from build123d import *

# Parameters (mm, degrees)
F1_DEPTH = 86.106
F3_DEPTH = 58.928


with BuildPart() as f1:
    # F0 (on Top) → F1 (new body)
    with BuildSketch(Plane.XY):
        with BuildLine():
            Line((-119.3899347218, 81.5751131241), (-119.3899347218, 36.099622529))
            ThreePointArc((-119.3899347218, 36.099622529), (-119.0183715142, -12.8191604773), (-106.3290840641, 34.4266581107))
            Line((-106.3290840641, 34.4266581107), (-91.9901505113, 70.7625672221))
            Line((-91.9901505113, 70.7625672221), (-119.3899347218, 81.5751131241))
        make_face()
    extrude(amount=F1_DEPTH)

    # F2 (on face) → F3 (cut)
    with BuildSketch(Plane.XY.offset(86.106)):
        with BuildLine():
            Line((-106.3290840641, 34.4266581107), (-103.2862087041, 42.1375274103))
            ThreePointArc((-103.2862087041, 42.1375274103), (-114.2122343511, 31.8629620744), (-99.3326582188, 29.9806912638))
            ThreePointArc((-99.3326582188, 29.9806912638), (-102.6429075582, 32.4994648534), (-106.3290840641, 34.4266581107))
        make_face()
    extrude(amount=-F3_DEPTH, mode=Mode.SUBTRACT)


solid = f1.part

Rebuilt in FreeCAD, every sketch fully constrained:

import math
import FreeCAD as App
import Part
import Sketcher
from FreeCAD import Vector
Q = App.Units.Quantity

doc = App.newDocument("Part")
body = doc.addObject("PartDesign::Body", "Body")

# Sketch on XY plane
sketch1 = doc.addObject("Sketcher::SketchObject", "Sketch")
body.addObject(sketch1)
sketch1.AttachmentSupport = (doc.XY_Plane, [""])
sketch1.MapMode = "FlatFace"
sketch1.addGeometry([
    Part.LineSegment(Vector(-119, 82, 0), Vector(-119, 36, 0)),
    Part.ArcOfCircle(Part.Circle(Vector(-116, 12, 0), Vector(0, 0, 1), 25), math.radians(98), math.radians(427)),
    Part.LineSegment(Vector(-106, 34, 0), Vector(-92, 71, 0)),
    Part.LineSegment(Vector(-92, 71, 0), Vector(-119, 82, 0)),
], False)
sketch1.addConstraint([
    Sketcher.Constraint("Coincident", 0, 2, 1, 1),
    Sketcher.Constraint("Coincident", 1, 2, 2, 1),
    Sketcher.Constraint("Coincident", 2, 2, 3, 1),
    Sketcher.Constraint("Coincident", 3, 2, 0, 1),
    Sketcher.Constraint("Vertical", 0),
    Sketcher.Constraint("Perpendicular", 2, 3),
    Sketcher.Constraint("Radius", 1, 24.684667),
    Sketcher.Constraint("DistanceY", 0, 2, 0, 1, 45.475491),
    Sketcher.Constraint("DistanceX", 0, 2, 1, 3, 3.507799),
    Sketcher.Constraint("DistanceY", -1, 1, 1, 2, 34.426658),
    Sketcher.Constraint("DistanceX", 2, 2, -1, 1, 91.990151),
    Sketcher.Constraint("DistanceX", 0, 2, 1, 2, 13.060851),
    Sketcher.Constraint("DistanceY", 1, 2, 2, 2, 36.335909),
])
pad1 = doc.addObject("PartDesign::Pad", "Pad")
body.addObject(pad1)
pad1.Profile = sketch1
pad1.Length = Q("3.39 in")

# Sketch on XY plane
sketch2 = doc.addObject("Sketcher::SketchObject", "Sketch001")
body.addObject(sketch2)
sketch2.AttachmentSupport = (doc.XY_Plane, [""])
sketch2.MapMode = "FlatFace"
sketch2.AttachmentOffset = App.Placement(Vector(0, 0, 3.39 * 25.4), App.Rotation())
sketch2.addGeometry([
    Part.LineSegment(Vector(-106, 34, 0), Vector(-103, 42, 0)),
    Part.ArcOfCircle(Part.Circle(Vector(-106, 34, 0), Vector(0, 0, 1), 8), math.radians(68), math.radians(328)),
    Part.ArcOfCircle(Part.Circle(Vector(-116, 12, 0), Vector(0, 0, 1), 25), math.radians(47.9), math.radians(67.23)),
], False)
sketch2.addConstraint([
    Sketcher.Constraint("Coincident", 0, 2, 1, 1),
    Sketcher.Constraint("Coincident", 1, 2, 2, 1),
    Sketcher.Constraint("Coincident", 2, 2, 0, 1),
    Sketcher.Constraint("Coincident", 2, 2, 1, 3),
    Sketcher.Constraint("Radius", 1, 8.289547),
    Sketcher.Constraint("Radius", 2, 24.684667),
    Sketcher.Constraint("DistanceY", -1, 1, 1, 3, 34.426658),
    Sketcher.Constraint("DistanceX", 0, 2, -1, 1, 103.286209),
    Sketcher.Constraint("DistanceX", 1, 2, -1, 1, 99.332658),
    Sketcher.Constraint("DistanceY", -1, 1, 1, 2, 29.980691),
])
pocket1 = doc.addObject("PartDesign::Pocket", "Pocket")
body.addObject(pocket1)
pocket1.Profile = sketch2
pocket1.Length = Q("2.32 in")

doc.recompute()
